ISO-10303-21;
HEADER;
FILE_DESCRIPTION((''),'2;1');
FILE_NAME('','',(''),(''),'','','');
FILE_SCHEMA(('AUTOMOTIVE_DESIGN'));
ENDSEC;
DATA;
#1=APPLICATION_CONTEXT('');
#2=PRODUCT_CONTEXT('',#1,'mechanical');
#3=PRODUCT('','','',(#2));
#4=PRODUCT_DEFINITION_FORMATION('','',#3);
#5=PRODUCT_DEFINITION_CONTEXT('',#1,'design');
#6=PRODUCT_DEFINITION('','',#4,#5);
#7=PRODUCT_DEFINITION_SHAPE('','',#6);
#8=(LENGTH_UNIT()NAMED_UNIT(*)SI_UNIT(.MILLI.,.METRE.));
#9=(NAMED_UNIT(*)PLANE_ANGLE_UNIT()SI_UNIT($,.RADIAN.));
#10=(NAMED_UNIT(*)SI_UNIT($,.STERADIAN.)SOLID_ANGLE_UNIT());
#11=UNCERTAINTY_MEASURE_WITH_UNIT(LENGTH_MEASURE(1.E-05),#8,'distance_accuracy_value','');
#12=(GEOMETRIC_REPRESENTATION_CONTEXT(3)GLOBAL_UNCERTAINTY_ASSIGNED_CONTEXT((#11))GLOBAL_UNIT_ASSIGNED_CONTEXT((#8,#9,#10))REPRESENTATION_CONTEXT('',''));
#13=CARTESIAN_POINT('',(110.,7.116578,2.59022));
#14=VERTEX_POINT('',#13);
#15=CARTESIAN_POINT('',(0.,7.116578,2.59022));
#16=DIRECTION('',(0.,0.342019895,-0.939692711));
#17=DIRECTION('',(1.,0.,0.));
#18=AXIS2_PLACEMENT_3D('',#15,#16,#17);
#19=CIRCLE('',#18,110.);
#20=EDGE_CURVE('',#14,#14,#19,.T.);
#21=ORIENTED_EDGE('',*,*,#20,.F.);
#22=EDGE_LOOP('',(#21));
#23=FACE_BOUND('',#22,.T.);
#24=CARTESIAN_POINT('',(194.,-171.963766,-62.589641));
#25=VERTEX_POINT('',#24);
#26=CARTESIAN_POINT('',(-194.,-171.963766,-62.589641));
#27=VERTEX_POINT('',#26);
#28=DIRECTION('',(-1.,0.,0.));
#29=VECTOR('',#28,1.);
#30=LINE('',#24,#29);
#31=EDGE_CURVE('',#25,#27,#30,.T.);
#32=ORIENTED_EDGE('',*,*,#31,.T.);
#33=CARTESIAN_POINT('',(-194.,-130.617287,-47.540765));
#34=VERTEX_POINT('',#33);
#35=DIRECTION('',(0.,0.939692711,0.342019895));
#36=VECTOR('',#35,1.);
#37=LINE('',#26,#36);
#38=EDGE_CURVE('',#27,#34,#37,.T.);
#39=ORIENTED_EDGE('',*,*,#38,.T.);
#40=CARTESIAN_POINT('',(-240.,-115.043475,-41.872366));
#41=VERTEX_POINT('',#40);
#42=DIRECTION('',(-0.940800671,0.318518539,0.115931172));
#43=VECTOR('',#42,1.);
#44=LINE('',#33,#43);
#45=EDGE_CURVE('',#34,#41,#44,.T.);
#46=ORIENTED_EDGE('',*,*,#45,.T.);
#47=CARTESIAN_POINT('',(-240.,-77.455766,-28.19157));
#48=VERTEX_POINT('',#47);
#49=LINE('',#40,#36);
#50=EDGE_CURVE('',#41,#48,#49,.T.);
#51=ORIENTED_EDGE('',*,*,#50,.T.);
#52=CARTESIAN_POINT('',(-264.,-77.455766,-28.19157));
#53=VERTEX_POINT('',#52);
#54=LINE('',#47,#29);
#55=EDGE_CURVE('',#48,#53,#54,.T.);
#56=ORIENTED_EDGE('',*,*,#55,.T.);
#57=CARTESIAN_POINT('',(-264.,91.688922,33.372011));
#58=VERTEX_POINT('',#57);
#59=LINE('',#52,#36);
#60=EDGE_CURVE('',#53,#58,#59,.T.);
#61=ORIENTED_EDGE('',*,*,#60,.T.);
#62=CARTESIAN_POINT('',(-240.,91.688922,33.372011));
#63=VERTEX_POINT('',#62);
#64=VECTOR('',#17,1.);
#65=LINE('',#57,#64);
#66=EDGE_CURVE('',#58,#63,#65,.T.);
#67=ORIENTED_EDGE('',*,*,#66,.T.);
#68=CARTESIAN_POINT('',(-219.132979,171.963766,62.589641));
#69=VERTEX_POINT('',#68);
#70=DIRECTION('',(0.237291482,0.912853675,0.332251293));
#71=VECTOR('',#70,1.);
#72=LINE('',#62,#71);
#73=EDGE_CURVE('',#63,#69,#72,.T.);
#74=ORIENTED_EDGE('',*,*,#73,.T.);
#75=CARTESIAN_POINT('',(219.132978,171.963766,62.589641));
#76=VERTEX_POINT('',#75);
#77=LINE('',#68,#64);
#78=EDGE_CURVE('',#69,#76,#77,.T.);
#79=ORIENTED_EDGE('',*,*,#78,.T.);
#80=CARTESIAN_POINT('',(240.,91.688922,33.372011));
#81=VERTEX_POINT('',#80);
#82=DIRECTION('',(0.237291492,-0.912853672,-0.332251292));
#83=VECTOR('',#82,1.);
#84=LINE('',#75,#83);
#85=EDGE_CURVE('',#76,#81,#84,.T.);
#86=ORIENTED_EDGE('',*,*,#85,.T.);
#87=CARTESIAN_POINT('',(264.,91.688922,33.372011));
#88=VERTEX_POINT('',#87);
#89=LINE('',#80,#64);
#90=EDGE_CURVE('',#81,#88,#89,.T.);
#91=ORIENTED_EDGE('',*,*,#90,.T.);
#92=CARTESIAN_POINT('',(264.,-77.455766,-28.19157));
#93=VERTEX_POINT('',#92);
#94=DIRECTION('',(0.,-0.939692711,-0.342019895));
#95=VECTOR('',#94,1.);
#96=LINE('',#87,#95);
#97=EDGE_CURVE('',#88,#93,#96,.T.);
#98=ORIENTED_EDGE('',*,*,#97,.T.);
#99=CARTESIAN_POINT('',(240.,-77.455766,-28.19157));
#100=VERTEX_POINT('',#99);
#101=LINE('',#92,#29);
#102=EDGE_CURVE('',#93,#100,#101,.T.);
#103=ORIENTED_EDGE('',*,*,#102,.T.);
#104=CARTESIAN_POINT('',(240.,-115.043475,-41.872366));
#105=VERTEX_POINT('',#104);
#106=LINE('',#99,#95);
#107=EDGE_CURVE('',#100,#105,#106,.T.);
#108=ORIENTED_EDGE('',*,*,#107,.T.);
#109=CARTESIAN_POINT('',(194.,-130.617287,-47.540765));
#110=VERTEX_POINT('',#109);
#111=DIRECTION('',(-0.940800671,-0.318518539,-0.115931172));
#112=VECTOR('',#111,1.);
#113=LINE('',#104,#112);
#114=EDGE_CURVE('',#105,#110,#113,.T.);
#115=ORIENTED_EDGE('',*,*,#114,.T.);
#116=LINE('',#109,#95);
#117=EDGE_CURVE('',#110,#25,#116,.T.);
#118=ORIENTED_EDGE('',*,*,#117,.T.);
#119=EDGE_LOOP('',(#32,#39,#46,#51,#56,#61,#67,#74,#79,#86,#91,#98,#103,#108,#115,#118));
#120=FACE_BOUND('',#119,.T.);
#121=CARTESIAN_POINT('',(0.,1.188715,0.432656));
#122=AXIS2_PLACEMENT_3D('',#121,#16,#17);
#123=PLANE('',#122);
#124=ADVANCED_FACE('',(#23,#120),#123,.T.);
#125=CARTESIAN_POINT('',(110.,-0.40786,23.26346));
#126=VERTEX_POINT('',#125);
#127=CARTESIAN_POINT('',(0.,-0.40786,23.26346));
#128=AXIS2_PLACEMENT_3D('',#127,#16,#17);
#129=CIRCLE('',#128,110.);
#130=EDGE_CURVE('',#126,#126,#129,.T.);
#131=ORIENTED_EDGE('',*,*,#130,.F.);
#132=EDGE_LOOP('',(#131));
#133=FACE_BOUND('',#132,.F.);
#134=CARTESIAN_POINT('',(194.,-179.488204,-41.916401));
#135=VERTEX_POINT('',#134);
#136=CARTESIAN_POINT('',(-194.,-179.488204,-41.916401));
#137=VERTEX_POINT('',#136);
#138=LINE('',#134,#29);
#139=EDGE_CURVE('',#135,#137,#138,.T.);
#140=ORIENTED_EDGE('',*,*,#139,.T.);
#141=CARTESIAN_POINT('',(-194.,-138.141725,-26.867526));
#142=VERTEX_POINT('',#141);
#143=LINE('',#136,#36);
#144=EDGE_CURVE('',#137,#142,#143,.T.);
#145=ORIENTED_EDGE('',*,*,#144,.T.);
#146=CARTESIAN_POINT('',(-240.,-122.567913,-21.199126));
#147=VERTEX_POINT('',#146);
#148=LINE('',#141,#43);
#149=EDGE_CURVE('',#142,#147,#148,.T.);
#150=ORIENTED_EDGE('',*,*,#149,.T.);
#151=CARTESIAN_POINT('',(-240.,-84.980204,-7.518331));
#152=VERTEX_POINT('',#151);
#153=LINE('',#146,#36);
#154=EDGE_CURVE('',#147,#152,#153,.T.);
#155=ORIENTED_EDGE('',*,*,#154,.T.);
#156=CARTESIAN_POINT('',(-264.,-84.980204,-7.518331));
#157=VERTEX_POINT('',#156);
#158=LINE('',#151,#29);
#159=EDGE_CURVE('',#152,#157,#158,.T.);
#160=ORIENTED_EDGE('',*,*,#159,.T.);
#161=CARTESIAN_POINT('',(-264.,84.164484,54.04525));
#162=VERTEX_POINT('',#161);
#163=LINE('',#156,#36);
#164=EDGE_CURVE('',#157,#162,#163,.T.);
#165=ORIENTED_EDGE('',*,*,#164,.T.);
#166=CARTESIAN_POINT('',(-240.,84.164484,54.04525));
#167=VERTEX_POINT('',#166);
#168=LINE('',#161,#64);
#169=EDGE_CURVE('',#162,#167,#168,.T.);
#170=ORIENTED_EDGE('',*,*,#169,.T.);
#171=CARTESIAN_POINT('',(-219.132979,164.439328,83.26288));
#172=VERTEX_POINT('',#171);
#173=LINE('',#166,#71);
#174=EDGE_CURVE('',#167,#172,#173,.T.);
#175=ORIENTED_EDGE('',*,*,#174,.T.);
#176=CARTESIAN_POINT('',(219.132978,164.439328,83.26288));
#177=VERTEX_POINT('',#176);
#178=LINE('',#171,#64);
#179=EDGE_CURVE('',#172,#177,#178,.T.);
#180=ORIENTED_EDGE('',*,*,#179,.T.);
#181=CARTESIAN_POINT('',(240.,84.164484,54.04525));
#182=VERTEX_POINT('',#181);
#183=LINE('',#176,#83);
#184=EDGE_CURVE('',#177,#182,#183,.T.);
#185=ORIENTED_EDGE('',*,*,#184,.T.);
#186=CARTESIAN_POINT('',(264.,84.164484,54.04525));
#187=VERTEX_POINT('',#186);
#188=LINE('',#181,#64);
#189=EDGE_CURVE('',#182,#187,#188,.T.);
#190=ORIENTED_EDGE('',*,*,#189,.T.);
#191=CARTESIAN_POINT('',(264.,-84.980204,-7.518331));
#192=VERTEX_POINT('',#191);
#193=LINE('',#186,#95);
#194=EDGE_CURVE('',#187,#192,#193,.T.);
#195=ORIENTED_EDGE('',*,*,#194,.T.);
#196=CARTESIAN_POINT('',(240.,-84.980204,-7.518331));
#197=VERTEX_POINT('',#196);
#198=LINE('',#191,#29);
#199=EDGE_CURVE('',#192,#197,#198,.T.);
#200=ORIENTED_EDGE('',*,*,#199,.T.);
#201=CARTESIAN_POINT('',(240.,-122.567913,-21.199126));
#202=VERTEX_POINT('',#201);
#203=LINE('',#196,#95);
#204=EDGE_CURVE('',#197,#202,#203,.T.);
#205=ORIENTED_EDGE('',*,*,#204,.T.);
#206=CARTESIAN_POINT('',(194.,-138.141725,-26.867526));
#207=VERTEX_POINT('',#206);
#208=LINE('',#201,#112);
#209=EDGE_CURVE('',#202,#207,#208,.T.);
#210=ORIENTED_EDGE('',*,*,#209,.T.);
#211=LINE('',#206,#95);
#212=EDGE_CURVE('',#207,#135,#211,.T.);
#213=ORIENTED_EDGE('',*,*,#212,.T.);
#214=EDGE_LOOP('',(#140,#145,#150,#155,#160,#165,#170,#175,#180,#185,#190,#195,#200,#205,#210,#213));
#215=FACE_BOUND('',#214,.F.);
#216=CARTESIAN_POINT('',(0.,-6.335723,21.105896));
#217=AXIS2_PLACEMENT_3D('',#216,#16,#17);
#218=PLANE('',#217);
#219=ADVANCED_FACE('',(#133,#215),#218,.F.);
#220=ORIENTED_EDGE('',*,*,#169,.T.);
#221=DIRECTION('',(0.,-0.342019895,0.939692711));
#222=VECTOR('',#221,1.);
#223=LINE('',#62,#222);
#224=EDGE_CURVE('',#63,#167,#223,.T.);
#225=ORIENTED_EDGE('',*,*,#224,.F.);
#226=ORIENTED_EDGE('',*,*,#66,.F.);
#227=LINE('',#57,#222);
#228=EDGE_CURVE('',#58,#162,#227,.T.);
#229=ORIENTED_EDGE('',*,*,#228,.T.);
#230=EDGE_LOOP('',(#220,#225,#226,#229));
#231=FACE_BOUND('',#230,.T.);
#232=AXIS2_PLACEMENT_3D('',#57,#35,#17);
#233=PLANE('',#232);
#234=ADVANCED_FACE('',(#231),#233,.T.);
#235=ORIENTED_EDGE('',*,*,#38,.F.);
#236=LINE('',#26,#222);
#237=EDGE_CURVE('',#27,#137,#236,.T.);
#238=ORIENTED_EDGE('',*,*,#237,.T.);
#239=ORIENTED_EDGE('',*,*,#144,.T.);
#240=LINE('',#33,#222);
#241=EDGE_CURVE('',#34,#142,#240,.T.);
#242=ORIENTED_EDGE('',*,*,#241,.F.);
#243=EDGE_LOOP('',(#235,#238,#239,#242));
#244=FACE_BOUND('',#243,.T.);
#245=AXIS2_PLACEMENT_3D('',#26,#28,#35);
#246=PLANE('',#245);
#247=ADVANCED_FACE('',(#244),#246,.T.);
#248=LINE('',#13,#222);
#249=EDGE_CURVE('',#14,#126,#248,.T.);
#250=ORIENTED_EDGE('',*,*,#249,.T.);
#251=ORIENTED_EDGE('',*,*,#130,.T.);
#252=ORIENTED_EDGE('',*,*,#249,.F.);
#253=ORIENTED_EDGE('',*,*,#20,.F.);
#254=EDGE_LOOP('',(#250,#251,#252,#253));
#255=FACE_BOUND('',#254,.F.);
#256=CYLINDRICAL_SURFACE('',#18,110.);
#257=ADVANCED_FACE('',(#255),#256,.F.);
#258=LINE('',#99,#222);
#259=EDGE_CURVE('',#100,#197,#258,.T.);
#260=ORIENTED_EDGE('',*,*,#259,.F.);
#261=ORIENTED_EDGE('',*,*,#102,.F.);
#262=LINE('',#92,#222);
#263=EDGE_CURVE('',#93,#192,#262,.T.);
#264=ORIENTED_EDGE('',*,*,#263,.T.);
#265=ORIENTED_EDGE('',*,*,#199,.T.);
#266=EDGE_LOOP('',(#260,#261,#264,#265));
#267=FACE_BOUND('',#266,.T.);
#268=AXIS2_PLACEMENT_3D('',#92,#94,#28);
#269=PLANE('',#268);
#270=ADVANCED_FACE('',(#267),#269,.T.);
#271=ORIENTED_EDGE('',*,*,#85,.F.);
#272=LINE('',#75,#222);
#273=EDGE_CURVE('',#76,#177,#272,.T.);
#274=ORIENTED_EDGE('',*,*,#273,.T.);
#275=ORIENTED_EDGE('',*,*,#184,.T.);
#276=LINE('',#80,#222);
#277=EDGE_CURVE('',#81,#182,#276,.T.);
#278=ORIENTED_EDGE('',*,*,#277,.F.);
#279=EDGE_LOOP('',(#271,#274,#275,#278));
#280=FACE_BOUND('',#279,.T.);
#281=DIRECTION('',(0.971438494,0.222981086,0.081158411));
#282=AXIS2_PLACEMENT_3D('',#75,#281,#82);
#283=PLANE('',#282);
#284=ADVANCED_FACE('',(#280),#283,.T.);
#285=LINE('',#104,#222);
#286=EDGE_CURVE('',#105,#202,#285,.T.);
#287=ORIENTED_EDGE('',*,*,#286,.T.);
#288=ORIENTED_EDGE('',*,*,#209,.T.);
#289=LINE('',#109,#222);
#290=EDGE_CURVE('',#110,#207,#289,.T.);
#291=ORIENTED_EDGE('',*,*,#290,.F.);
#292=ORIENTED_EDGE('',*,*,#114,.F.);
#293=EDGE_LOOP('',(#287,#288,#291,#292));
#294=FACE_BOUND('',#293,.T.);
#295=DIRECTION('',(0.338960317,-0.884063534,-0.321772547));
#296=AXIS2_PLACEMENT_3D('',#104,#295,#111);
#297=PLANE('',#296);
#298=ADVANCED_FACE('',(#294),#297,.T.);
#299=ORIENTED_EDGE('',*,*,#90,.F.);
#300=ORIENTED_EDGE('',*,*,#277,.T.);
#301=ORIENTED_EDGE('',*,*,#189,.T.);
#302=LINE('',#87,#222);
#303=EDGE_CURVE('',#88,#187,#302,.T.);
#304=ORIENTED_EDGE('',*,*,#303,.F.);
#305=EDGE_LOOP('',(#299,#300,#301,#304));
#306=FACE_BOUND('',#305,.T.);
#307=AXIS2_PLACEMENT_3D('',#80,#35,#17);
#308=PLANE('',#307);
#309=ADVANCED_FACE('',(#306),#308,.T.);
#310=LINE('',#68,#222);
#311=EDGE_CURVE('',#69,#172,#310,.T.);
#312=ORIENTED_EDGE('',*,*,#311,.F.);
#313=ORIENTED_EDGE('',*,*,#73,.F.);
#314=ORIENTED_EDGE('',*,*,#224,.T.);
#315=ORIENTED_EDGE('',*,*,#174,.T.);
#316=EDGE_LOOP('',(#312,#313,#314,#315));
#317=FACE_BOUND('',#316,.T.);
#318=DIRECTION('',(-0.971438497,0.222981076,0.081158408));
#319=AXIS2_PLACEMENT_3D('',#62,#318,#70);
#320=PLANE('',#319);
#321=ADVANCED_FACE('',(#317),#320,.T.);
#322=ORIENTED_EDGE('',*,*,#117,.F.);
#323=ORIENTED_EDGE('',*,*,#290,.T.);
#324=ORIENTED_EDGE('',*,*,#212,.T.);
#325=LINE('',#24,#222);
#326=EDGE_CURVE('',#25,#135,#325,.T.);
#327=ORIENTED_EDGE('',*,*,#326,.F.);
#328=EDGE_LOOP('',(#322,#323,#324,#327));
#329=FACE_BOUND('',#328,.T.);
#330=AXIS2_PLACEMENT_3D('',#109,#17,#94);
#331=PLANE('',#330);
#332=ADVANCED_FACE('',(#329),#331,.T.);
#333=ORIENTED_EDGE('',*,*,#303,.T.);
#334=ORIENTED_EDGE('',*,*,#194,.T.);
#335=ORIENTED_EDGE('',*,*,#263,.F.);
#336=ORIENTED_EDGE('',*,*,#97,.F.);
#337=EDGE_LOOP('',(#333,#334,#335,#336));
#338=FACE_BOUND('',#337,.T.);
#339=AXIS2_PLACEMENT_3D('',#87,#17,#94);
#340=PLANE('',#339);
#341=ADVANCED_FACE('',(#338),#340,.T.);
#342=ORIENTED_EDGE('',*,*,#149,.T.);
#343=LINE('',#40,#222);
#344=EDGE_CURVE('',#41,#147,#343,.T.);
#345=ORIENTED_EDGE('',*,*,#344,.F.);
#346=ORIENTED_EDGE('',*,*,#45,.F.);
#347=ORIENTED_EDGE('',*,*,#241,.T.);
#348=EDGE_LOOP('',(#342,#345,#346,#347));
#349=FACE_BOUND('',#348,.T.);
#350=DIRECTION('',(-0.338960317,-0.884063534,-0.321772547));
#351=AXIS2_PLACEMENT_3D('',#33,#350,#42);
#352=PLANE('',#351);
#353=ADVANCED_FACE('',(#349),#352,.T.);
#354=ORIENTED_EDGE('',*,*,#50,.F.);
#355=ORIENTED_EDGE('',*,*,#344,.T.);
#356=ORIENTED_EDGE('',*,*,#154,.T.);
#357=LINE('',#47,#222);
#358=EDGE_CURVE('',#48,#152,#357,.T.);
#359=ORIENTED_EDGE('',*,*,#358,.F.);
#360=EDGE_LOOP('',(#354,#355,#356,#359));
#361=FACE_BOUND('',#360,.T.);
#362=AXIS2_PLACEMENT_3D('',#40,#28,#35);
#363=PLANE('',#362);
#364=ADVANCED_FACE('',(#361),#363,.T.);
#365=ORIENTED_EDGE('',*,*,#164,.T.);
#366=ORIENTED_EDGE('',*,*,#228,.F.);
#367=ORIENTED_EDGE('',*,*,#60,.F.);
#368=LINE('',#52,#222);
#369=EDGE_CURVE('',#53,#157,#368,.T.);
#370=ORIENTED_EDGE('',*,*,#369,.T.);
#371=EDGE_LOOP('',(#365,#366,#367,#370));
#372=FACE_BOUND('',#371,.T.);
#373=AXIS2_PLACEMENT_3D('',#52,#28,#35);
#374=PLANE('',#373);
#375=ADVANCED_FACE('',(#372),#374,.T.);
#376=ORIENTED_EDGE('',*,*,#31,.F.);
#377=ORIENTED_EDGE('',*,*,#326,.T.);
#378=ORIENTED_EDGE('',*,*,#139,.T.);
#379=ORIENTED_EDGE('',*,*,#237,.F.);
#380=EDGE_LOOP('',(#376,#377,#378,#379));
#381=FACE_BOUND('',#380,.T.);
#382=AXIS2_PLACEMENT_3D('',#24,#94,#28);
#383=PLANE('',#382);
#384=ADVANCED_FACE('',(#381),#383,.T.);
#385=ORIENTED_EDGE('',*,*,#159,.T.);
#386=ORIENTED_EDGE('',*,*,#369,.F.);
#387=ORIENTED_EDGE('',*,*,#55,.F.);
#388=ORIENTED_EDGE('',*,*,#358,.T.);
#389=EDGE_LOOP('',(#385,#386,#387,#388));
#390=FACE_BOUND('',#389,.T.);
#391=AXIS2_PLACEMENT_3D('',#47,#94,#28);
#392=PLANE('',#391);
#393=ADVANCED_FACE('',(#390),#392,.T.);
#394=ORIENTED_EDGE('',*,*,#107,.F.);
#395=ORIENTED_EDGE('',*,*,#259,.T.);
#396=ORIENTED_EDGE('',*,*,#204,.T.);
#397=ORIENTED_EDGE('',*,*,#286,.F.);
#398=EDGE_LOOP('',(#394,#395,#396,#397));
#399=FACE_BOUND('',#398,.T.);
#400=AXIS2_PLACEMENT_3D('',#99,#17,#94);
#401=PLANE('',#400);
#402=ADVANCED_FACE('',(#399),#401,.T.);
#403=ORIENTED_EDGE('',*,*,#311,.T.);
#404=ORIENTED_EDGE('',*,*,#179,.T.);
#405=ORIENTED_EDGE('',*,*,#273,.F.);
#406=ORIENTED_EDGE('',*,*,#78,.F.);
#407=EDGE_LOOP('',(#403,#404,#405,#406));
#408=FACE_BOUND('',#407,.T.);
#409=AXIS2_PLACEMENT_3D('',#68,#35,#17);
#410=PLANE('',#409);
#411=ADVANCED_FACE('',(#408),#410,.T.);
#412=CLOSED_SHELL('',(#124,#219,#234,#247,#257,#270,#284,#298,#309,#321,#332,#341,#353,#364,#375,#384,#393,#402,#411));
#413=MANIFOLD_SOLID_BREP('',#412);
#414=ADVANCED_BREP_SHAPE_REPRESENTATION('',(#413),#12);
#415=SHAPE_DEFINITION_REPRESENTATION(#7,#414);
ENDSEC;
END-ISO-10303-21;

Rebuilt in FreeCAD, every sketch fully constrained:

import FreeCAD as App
import Part
import Sketcher


def add_polygon(sketch, points):
    """Adds a closed chain of lines whose ends are joined by coincident constraints."""
    first, n = sketch.GeometryCount, len(points)
    for a, b in zip(points, points[1:] + points[:1]):
        sketch.addGeometry(Part.LineSegment(App.Vector(*a, 0), App.Vector(*b, 0)), False)
    for i in range(n):
        sketch.addConstraint(Sketcher.Constraint("Coincident", first + i, 2, first + (i + 1) % n, 1))

doc = App.newDocument("Part")
body = doc.addObject("PartDesign::Body", "Body")

sketch1 = body.newObject("Sketcher::SketchObject", "Sketch")
sketch1.Placement = App.Placement(App.Vector(0, 0, 0), App.Rotation(App.Vector(1, 0, 0), App.Vector(0, -0.939692711, -0.342019895), App.Vector(0, 0.342019895, -0.939692711), "ZXY"))
add_polygon(sketch1, [(-194, 183), (-194, 139), (-240, 122.426697), (-240, 82.426697), (-264, 82.426697), (-264, -97.573303), (-240, -97.573303), (-219.132979, -183), (219.132978, -183), (240, -97.573303), (264, -97.573303), (264, 82.426697), (240, 82.426697), (240, 122.426697), (194, 139), (194, 183)])
sketch1.addGeometry(Part.Circle(App.Vector(0, -7.573303, 0), App.Vector(0, 0, 1), 110), False)
sketch1.addConstraint([
    Sketcher.Constraint("Vertical", 0),
    Sketcher.Constraint("Vertical", 2),
    Sketcher.Constraint("Horizontal", 3),
    Sketcher.Constraint("Vertical", 4),
    Sketcher.Constraint("Horizontal", 5),
    Sketcher.Constraint("Horizontal", 7),
    Sketcher.Constraint("Horizontal", 9),
    Sketcher.Constraint("Vertical", 10),
    Sketcher.Constraint("Horizontal", 11),
    Sketcher.Constraint("Vertical", 12),
    Sketcher.Constraint("Vertical", 14),
    Sketcher.Constraint("Horizontal", 15),
    Sketcher.Constraint("Symmetric", 5, 2, 8, 2, -2),
    Sketcher.Constraint("Symmetric", 3, 2, 10, 2, -2),
    Sketcher.Constraint("Symmetric", 1, 2, 12, 2, -2),
    Sketcher.Constraint("Symmetric", 0, 2, 13, 2, -2),
    Sketcher.Constraint("PointOnObject", 16, 3, -2),
    Sketcher.Constraint("Vertical", 2, 2, 5, 2),
    Sketcher.Constraint("Equal", 6, 8),
    Sketcher.Constraint("Diameter", 16, 220.0),
    Sketcher.Constraint("DistanceX", 3, 2, 3, 1, 24.0),
    Sketcher.Constraint("DistanceX", 15, 2, 15, 1, 388.0),
    Sketcher.Constraint("DistanceY", 0, 2, 0, 1, 44.0),
    Sketcher.Constraint("DistanceY", 2, 2, 2, 1, 40.0),
    Sketcher.Constraint("DistanceY", 4, 2, 4, 1, 180.0),
    Sketcher.Constraint("DistanceY", -1, 1, 0, 2, 139.0),
    Sketcher.Constraint("DistanceX", 1, 2, -1, 1, 240.0),
    Sketcher.Constraint("DistanceY", 6, 2, -1, 1, 183.0),
    Sketcher.Constraint("DistanceY", 16, 3, 1, 2, 130.0),
    Sketcher.Constraint("Distance", 6, 87.938348),
    Sketcher.Constraint("DistanceX", 7, 1, 7, 2, 438.265957),
])
pad1 = body.newObject("PartDesign::Pad", "Pad")
pad1.Profile = sketch1
pad1.Length = 22
pad1.Reversed = True

doc.recompute()
